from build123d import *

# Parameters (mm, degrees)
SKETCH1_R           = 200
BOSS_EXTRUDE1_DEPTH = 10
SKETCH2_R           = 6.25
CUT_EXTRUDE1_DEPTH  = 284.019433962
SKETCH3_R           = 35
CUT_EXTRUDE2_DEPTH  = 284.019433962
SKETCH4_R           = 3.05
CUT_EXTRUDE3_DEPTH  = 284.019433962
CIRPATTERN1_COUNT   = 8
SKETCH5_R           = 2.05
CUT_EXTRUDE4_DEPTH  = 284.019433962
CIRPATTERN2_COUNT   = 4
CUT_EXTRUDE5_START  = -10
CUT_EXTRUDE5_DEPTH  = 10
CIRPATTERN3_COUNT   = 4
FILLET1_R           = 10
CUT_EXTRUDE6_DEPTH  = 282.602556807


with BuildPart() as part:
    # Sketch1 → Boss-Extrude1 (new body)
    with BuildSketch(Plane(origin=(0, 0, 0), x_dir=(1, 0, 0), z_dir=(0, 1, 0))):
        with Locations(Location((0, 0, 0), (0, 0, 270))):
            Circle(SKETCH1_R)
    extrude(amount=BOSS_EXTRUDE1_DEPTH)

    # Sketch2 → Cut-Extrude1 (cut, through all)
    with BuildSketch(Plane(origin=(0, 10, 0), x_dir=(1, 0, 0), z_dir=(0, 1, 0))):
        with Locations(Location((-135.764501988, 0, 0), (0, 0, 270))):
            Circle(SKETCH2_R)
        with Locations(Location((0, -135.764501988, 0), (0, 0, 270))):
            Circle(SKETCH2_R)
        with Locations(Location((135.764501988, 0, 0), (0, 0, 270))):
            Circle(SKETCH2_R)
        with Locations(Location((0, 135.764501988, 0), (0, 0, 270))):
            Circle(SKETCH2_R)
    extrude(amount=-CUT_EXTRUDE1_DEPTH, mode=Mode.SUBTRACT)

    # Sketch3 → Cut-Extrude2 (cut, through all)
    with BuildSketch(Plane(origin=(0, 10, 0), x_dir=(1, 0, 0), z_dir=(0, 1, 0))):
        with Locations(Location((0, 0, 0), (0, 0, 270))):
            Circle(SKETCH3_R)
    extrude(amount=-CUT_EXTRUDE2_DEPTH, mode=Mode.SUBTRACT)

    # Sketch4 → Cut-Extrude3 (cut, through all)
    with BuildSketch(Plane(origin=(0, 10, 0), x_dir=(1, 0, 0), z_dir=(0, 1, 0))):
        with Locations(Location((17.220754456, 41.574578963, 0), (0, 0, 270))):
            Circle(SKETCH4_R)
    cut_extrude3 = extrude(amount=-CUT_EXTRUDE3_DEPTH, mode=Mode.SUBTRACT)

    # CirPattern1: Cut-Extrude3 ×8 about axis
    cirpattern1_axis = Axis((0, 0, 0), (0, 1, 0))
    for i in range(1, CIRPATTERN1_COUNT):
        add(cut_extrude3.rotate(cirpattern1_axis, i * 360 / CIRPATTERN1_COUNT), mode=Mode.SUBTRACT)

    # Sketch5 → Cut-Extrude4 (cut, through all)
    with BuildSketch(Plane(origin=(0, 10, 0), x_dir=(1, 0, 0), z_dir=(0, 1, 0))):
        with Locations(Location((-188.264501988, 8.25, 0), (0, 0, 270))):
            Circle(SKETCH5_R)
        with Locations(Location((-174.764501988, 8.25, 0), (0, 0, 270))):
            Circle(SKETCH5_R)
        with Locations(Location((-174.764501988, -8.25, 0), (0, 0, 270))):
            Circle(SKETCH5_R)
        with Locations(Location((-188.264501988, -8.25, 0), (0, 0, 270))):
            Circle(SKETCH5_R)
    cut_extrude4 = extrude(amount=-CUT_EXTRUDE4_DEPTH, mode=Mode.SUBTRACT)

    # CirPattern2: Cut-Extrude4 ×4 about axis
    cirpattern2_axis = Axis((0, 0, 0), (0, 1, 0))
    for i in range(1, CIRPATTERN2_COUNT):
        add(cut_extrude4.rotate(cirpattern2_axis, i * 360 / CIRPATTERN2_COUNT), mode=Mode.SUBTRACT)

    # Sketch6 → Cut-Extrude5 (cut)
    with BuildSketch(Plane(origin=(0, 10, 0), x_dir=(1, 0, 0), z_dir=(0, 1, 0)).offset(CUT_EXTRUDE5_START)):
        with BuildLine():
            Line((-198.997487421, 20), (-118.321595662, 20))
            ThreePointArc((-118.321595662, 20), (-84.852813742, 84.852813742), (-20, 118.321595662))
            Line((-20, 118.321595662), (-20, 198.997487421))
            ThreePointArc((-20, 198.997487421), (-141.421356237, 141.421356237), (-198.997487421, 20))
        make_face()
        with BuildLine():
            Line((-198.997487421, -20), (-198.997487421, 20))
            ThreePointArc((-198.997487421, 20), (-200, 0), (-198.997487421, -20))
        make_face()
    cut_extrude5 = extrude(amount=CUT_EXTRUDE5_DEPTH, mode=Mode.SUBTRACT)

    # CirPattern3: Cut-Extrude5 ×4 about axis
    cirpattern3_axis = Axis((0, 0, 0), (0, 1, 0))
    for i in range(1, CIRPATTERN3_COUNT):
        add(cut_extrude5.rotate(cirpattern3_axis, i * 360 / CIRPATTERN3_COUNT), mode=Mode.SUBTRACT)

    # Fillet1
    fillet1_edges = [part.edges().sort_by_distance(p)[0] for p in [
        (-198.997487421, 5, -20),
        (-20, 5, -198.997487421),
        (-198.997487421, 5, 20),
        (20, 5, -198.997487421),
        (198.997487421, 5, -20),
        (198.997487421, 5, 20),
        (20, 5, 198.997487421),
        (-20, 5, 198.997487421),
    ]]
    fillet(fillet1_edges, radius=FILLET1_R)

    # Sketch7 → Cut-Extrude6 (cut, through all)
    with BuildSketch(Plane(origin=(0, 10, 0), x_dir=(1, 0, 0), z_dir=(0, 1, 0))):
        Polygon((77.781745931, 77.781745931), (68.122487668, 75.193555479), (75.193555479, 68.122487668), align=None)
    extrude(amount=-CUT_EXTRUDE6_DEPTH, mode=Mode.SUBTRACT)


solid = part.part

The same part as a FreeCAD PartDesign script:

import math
import FreeCAD as App
import Part
import Sketcher

V = App.Vector
Q = App.Units.Quantity


def edges_at(feature, points):
    """Names of the edges that pass closest to the given points."""
    edges = feature.Shape.Edges
    near = lambda p: min(range(len(edges)), key=lambda i: edges[i].distToShape(Part.Vertex(*p))[0])
    return sorted({f"Edge{near(p) + 1}" for p in points})


def add_polygon(sketch, points):
    """Adds a closed chain of lines whose ends are joined by coincident constraints."""
    first, n = sketch.GeometryCount, len(points)
    for a, b in zip(points, points[1:] + points[:1]):
        sketch.addGeometry(Part.LineSegment(App.Vector(*a, 0), App.Vector(*b, 0)), False)
    for i in range(n):
        sketch.addConstraint(Sketcher.Constraint("Coincident", first + i, 2, first + (i + 1) % n, 1))

doc = App.newDocument("Part")
body = doc.addObject("PartDesign::Body", "Body")

# Sketch on XZ plane
sketch1 = body.newObject("Sketcher::SketchObject", "Sketch")
sketch1.AttachmentSupport = (doc.getObject("XZ_Plane"), [""])
sketch1.MapMode = "FlatFace"
sketch1.addGeometry(Part.Circle(V(0, 0, 0), V(0, 0, 1), 200), False)
sketch1.addConstraint([
    Sketcher.Constraint("Coincident", 0, 3, -1, 1),
    Sketcher.Constraint("Diameter", 0, 400.0),
])
pad1 = body.newObject("PartDesign::Pad", "Pad")
pad1.Profile = sketch1
pad1.Length = 10
pad1.Reversed = True

# Sketch on XZ plane
sketch2 = body.newObject("Sketcher::SketchObject", "Sketch001")
sketch2.AttachmentSupport = (doc.getObject("XZ_Plane"), [""])
sketch2.MapMode = "FlatFace"
sketch2.AttachmentOffset = App.Placement(V(0, 0, -10), App.Rotation())
sketch2.addGeometry([
    Part.Circle(V(-136, 0, 0), V(0, 0, 1), 6),
    Part.Circle(V(0, 136, 0), V(0, 0, 1), 6),
    Part.Circle(V(136, 0, 0), V(0, 0, 1), 6),
    Part.Circle(V(0, -136, 0), V(0, 0, 1), 6),
], False)
sketch2.addConstraint([
    Sketcher.Constraint("Equal", 0, 1),
    Sketcher.Constraint("Equal", 1, 2),
    Sketcher.Constraint("Equal", 2, 3),
    Sketcher.Constraint("Symmetric", 0, 3, 2, 3, -1, 1),
    Sketcher.Constraint("Symmetric", 1, 3, 3, 3, -1, 1),
    Sketcher.Constraint("PointOnObject", 0, 3, -1),
    Sketcher.Constraint("PointOnObject", 1, 3, -2),
    Sketcher.Constraint("Diameter", 0, 12.5),
    Sketcher.Constraint("DistanceX", 0, 3, -1, 1, 135.764502),
    Sketcher.Constraint("DistanceY", -1, 1, 1, 3, 135.764502),
])
pocket1 = body.newObject("PartDesign::Pocket", "Pocket")
pocket1.Profile = sketch2
pocket1.Type = "ThroughAll"
pocket1.Reversed = True

# Sketch on XZ plane
sketch3 = body.newObject("Sketcher::SketchObject", "Sketch002")
sketch3.AttachmentSupport = (doc.getObject("XZ_Plane"), [""])
sketch3.MapMode = "FlatFace"
sketch3.AttachmentOffset = App.Placement(V(0, 0, -10), App.Rotation())
sketch3.addGeometry(Part.Circle(V(0, 0, 0), V(0, 0, 1), 35), False)
sketch3.addConstraint([
    Sketcher.Constraint("Coincident", 0, 3, -1, 1),
    Sketcher.Constraint("Diameter", 0, 70.0),
])
pocket2 = body.newObject("PartDesign::Pocket", "Pocket001")
pocket2.Profile = sketch3
pocket2.Type = "ThroughAll"
pocket2.Reversed = True

# Sketch on XZ plane
sketch4 = body.newObject("Sketcher::SketchObject", "Sketch003")
sketch4.AttachmentSupport = (doc.getObject("XZ_Plane"), [""])
sketch4.MapMode = "FlatFace"
sketch4.AttachmentOffset = App.Placement(V(0, 0, -10), App.Rotation())
sketch4.addGeometry(Part.Circle(V(17.2, -41.6, 0), V(0, 0, 1), 3), False)
sketch4.addConstraint([
    Sketcher.Constraint("Diameter", 0, 6.1),
    Sketcher.Constraint("DistanceY", 0, 3, -1, 1, 41.574579),
    Sketcher.Constraint("DistanceX", -1, 1, 0, 3, 17.220754),
])
pocket3 = body.newObject("PartDesign::Pocket", "Pocket002")
pocket3.Profile = sketch4
pocket3.Type = "ThroughAll"
pocket3.Reversed = True
doc.recompute()

polarpattern = body.newObject("PartDesign::PolarPattern", "PolarPattern")
polarpattern.Originals = [pocket3]
polarpattern.Axis = (doc.getObject("Y_Axis"), [""])
polarpattern.Angle = 360
polarpattern.Occurrences = 8
body.Tip = polarpattern

# Sketch on XZ plane
sketch5 = body.newObject("Sketcher::SketchObject", "Sketch004")
sketch5.AttachmentSupport = (doc.getObject("XZ_Plane"), [""])
sketch5.MapMode = "FlatFace"
sketch5.AttachmentOffset = App.Placement(V(0, 0, -10), App.Rotation())
sketch5.addGeometry([
    Part.Circle(V(-188.3, -8.2, 0), V(0, 0, 1), 2),
    Part.Circle(V(-174.8, -8.2, 0), V(0, 0, 1), 2),
    Part.Circle(V(-174.8, 8.2, 0), V(0, 0, 1), 2),
    Part.Circle(V(-188.3, 8.2, 0), V(0, 0, 1), 2),
], False)
sketch5.addConstraint([
    Sketcher.Constraint("Equal", 0, 1),
    Sketcher.Constraint("Equal", 1, 2),
    Sketcher.Constraint("Equal", 2, 3),
    Sketcher.Constraint("Symmetric", 1, 3, 2, 3, -1),
    Sketcher.Constraint("Symmetric", 0, 3, 3, 3, -1),
    Sketcher.Constraint("Horizontal", 0, 3, 1, 3),
    Sketcher.Constraint("Diameter", 0, 4.1),
    Sketcher.Constraint("DistanceX", 0, 3, 1, 3, 13.5),
    Sketcher.Constraint("DistanceY", 1, 3, 2, 3, 16.5),
    Sketcher.Constraint("DistanceX", 0, 3, -1, 1, 188.264502),
])
pocket4 = body.newObject("PartDesign::Pocket", "Pocket003")
pocket4.Profile = sketch5
pocket4.Type = "ThroughAll"
pocket4.Reversed = True
doc.recompute()

polarpattern2 = body.newObject("PartDesign::PolarPattern", "PolarPattern001")
polarpattern2.Originals = [pocket4]
polarpattern2.Axis = (doc.getObject("Y_Axis"), [""])
polarpattern2.Angle = 360
polarpattern2.Occurrences = 4
body.Tip = polarpattern2

# Sketch on XZ plane
sketch6 = body.newObject("Sketcher::SketchObject", "Sketch005")
sketch6.AttachmentSupport = (doc.getObject("XZ_Plane"), [""])
sketch6.MapMode = "FlatFace"
sketch6.addGeometry([
    Part.LineSegment(V(-199, -20, 0), V(-118, -20, 0)),  # 0
    Part.ArcOfCircle(Part.Circle(V(0, 0, 0), V(0, 0, 1), 120), math.radians(-170), math.radians(-100)),  # 1
    Part.LineSegment(V(-20, -118, 0), V(-20, -199, 0)),  # 2
    Part.ArcOfCircle(Part.Circle(V(0, 0, 0), V(0, 0, 1), 200), math.radians(-174), math.radians(-96)),  # 3
    Part.LineSegment(V(-199, 20, 0), V(-199, -20, 0)),  # 4
    Part.ArcOfCircle(Part.Circle(V(0, 0, 0), V(0, 0, 1), 200), math.radians(174.26), math.radians(185.74)),  # 5
], False)
sketch6.addConstraint([
    Sketcher.Constraint("Coincident", 0, 2, 1, 1),
    Sketcher.Constraint("Coincident", 1, 2, 2, 1),
    Sketcher.Constraint("Coincident", 2, 2, 3, 2),
    Sketcher.Constraint("Coincident", 3, 1, 0, 1),
    Sketcher.Constraint("Coincident", 4, 1, 5, 1),
    Sketcher.Constraint("Coincident", 5, 2, 4, 2),
    Sketcher.Constraint("Horizontal", 0),
    Sketcher.Constraint("Vertical", 2),
    Sketcher.Constraint("Vertical", 4),
    Sketcher.Constraint("Coincident", 1, 3, -1, 1),
    Sketcher.Constraint("Coincident", 3, 3, -1, 1),
    Sketcher.Constraint("Coincident", 5, 3, -1, 1),
    Sketcher.Constraint("Coincident", 5, 2, 3, 1),
    Sketcher.Constraint("Equal", 0, 2),
    Sketcher.Constraint("Radius", 1, 120.0),
    Sketcher.Constraint("Radius", 3, 200.0),
    Sketcher.Constraint("DistanceY", 4, 2, 4, 1, 40.0),
])
pocket5 = body.newObject("PartDesign::Pocket", "Pocket004")
pocket5.Profile = sketch6
pocket5.Length = 10
doc.recompute()

polarpattern3 = body.newObject("PartDesign::PolarPattern", "PolarPattern002")
polarpattern3.Originals = [pocket5]
polarpattern3.Axis = (doc.getObject("Y_Axis"), [""])
polarpattern3.Angle = 360
polarpattern3.Occurrences = 4
body.Tip = polarpattern3
doc.recompute()

fillet = body.newObject("PartDesign::Fillet", "Fillet")
fillet.Base = (polarpattern3, edges_at(polarpattern3, [
    (-198.997, 5, -20),
    (-20, 5, -198.997),
    (-198.997, 5, 20),
    (20, 5, -198.997),
    (198.997, 5, -20),
    (198.997, 5, 20),
    (20, 5, 198.997),
    (-20, 5, 198.997),
]))
fillet.Radius = 10

# Sketch on XZ plane
sketch7 = body.newObject("Sketcher::SketchObject", "Sketch006")
sketch7.AttachmentSupport = (doc.getObject("XZ_Plane"), [""])
sketch7.MapMode = "FlatFace"
sketch7.AttachmentOffset = App.Placement(V(0, 0, -10), App.Rotation())
add_polygon(sketch7, [(78, -78), (68, -75), (75, -68)])  # lines 0-2
sketch7.addConstraint([
    Sketcher.Constraint("Equal", 0, 1),
    Sketcher.Constraint("Equal", 1, 2),
    Sketcher.Constraint("Angle", 0, Q("165 deg")),
    Sketcher.Constraint("Distance", 0, 10.0),
    Sketcher.Constraint("DistanceX", -1, 1, 0, 2, 68.122488),
    Sketcher.Constraint("DistanceY", 0, 2, -1, 1, 75.193555),
])
pocket6 = body.newObject("PartDesign::Pocket", "Pocket005")
pocket6.Profile = sketch7
pocket6.Type = "ThroughAll"
pocket6.Reversed = True

doc.recompute()
